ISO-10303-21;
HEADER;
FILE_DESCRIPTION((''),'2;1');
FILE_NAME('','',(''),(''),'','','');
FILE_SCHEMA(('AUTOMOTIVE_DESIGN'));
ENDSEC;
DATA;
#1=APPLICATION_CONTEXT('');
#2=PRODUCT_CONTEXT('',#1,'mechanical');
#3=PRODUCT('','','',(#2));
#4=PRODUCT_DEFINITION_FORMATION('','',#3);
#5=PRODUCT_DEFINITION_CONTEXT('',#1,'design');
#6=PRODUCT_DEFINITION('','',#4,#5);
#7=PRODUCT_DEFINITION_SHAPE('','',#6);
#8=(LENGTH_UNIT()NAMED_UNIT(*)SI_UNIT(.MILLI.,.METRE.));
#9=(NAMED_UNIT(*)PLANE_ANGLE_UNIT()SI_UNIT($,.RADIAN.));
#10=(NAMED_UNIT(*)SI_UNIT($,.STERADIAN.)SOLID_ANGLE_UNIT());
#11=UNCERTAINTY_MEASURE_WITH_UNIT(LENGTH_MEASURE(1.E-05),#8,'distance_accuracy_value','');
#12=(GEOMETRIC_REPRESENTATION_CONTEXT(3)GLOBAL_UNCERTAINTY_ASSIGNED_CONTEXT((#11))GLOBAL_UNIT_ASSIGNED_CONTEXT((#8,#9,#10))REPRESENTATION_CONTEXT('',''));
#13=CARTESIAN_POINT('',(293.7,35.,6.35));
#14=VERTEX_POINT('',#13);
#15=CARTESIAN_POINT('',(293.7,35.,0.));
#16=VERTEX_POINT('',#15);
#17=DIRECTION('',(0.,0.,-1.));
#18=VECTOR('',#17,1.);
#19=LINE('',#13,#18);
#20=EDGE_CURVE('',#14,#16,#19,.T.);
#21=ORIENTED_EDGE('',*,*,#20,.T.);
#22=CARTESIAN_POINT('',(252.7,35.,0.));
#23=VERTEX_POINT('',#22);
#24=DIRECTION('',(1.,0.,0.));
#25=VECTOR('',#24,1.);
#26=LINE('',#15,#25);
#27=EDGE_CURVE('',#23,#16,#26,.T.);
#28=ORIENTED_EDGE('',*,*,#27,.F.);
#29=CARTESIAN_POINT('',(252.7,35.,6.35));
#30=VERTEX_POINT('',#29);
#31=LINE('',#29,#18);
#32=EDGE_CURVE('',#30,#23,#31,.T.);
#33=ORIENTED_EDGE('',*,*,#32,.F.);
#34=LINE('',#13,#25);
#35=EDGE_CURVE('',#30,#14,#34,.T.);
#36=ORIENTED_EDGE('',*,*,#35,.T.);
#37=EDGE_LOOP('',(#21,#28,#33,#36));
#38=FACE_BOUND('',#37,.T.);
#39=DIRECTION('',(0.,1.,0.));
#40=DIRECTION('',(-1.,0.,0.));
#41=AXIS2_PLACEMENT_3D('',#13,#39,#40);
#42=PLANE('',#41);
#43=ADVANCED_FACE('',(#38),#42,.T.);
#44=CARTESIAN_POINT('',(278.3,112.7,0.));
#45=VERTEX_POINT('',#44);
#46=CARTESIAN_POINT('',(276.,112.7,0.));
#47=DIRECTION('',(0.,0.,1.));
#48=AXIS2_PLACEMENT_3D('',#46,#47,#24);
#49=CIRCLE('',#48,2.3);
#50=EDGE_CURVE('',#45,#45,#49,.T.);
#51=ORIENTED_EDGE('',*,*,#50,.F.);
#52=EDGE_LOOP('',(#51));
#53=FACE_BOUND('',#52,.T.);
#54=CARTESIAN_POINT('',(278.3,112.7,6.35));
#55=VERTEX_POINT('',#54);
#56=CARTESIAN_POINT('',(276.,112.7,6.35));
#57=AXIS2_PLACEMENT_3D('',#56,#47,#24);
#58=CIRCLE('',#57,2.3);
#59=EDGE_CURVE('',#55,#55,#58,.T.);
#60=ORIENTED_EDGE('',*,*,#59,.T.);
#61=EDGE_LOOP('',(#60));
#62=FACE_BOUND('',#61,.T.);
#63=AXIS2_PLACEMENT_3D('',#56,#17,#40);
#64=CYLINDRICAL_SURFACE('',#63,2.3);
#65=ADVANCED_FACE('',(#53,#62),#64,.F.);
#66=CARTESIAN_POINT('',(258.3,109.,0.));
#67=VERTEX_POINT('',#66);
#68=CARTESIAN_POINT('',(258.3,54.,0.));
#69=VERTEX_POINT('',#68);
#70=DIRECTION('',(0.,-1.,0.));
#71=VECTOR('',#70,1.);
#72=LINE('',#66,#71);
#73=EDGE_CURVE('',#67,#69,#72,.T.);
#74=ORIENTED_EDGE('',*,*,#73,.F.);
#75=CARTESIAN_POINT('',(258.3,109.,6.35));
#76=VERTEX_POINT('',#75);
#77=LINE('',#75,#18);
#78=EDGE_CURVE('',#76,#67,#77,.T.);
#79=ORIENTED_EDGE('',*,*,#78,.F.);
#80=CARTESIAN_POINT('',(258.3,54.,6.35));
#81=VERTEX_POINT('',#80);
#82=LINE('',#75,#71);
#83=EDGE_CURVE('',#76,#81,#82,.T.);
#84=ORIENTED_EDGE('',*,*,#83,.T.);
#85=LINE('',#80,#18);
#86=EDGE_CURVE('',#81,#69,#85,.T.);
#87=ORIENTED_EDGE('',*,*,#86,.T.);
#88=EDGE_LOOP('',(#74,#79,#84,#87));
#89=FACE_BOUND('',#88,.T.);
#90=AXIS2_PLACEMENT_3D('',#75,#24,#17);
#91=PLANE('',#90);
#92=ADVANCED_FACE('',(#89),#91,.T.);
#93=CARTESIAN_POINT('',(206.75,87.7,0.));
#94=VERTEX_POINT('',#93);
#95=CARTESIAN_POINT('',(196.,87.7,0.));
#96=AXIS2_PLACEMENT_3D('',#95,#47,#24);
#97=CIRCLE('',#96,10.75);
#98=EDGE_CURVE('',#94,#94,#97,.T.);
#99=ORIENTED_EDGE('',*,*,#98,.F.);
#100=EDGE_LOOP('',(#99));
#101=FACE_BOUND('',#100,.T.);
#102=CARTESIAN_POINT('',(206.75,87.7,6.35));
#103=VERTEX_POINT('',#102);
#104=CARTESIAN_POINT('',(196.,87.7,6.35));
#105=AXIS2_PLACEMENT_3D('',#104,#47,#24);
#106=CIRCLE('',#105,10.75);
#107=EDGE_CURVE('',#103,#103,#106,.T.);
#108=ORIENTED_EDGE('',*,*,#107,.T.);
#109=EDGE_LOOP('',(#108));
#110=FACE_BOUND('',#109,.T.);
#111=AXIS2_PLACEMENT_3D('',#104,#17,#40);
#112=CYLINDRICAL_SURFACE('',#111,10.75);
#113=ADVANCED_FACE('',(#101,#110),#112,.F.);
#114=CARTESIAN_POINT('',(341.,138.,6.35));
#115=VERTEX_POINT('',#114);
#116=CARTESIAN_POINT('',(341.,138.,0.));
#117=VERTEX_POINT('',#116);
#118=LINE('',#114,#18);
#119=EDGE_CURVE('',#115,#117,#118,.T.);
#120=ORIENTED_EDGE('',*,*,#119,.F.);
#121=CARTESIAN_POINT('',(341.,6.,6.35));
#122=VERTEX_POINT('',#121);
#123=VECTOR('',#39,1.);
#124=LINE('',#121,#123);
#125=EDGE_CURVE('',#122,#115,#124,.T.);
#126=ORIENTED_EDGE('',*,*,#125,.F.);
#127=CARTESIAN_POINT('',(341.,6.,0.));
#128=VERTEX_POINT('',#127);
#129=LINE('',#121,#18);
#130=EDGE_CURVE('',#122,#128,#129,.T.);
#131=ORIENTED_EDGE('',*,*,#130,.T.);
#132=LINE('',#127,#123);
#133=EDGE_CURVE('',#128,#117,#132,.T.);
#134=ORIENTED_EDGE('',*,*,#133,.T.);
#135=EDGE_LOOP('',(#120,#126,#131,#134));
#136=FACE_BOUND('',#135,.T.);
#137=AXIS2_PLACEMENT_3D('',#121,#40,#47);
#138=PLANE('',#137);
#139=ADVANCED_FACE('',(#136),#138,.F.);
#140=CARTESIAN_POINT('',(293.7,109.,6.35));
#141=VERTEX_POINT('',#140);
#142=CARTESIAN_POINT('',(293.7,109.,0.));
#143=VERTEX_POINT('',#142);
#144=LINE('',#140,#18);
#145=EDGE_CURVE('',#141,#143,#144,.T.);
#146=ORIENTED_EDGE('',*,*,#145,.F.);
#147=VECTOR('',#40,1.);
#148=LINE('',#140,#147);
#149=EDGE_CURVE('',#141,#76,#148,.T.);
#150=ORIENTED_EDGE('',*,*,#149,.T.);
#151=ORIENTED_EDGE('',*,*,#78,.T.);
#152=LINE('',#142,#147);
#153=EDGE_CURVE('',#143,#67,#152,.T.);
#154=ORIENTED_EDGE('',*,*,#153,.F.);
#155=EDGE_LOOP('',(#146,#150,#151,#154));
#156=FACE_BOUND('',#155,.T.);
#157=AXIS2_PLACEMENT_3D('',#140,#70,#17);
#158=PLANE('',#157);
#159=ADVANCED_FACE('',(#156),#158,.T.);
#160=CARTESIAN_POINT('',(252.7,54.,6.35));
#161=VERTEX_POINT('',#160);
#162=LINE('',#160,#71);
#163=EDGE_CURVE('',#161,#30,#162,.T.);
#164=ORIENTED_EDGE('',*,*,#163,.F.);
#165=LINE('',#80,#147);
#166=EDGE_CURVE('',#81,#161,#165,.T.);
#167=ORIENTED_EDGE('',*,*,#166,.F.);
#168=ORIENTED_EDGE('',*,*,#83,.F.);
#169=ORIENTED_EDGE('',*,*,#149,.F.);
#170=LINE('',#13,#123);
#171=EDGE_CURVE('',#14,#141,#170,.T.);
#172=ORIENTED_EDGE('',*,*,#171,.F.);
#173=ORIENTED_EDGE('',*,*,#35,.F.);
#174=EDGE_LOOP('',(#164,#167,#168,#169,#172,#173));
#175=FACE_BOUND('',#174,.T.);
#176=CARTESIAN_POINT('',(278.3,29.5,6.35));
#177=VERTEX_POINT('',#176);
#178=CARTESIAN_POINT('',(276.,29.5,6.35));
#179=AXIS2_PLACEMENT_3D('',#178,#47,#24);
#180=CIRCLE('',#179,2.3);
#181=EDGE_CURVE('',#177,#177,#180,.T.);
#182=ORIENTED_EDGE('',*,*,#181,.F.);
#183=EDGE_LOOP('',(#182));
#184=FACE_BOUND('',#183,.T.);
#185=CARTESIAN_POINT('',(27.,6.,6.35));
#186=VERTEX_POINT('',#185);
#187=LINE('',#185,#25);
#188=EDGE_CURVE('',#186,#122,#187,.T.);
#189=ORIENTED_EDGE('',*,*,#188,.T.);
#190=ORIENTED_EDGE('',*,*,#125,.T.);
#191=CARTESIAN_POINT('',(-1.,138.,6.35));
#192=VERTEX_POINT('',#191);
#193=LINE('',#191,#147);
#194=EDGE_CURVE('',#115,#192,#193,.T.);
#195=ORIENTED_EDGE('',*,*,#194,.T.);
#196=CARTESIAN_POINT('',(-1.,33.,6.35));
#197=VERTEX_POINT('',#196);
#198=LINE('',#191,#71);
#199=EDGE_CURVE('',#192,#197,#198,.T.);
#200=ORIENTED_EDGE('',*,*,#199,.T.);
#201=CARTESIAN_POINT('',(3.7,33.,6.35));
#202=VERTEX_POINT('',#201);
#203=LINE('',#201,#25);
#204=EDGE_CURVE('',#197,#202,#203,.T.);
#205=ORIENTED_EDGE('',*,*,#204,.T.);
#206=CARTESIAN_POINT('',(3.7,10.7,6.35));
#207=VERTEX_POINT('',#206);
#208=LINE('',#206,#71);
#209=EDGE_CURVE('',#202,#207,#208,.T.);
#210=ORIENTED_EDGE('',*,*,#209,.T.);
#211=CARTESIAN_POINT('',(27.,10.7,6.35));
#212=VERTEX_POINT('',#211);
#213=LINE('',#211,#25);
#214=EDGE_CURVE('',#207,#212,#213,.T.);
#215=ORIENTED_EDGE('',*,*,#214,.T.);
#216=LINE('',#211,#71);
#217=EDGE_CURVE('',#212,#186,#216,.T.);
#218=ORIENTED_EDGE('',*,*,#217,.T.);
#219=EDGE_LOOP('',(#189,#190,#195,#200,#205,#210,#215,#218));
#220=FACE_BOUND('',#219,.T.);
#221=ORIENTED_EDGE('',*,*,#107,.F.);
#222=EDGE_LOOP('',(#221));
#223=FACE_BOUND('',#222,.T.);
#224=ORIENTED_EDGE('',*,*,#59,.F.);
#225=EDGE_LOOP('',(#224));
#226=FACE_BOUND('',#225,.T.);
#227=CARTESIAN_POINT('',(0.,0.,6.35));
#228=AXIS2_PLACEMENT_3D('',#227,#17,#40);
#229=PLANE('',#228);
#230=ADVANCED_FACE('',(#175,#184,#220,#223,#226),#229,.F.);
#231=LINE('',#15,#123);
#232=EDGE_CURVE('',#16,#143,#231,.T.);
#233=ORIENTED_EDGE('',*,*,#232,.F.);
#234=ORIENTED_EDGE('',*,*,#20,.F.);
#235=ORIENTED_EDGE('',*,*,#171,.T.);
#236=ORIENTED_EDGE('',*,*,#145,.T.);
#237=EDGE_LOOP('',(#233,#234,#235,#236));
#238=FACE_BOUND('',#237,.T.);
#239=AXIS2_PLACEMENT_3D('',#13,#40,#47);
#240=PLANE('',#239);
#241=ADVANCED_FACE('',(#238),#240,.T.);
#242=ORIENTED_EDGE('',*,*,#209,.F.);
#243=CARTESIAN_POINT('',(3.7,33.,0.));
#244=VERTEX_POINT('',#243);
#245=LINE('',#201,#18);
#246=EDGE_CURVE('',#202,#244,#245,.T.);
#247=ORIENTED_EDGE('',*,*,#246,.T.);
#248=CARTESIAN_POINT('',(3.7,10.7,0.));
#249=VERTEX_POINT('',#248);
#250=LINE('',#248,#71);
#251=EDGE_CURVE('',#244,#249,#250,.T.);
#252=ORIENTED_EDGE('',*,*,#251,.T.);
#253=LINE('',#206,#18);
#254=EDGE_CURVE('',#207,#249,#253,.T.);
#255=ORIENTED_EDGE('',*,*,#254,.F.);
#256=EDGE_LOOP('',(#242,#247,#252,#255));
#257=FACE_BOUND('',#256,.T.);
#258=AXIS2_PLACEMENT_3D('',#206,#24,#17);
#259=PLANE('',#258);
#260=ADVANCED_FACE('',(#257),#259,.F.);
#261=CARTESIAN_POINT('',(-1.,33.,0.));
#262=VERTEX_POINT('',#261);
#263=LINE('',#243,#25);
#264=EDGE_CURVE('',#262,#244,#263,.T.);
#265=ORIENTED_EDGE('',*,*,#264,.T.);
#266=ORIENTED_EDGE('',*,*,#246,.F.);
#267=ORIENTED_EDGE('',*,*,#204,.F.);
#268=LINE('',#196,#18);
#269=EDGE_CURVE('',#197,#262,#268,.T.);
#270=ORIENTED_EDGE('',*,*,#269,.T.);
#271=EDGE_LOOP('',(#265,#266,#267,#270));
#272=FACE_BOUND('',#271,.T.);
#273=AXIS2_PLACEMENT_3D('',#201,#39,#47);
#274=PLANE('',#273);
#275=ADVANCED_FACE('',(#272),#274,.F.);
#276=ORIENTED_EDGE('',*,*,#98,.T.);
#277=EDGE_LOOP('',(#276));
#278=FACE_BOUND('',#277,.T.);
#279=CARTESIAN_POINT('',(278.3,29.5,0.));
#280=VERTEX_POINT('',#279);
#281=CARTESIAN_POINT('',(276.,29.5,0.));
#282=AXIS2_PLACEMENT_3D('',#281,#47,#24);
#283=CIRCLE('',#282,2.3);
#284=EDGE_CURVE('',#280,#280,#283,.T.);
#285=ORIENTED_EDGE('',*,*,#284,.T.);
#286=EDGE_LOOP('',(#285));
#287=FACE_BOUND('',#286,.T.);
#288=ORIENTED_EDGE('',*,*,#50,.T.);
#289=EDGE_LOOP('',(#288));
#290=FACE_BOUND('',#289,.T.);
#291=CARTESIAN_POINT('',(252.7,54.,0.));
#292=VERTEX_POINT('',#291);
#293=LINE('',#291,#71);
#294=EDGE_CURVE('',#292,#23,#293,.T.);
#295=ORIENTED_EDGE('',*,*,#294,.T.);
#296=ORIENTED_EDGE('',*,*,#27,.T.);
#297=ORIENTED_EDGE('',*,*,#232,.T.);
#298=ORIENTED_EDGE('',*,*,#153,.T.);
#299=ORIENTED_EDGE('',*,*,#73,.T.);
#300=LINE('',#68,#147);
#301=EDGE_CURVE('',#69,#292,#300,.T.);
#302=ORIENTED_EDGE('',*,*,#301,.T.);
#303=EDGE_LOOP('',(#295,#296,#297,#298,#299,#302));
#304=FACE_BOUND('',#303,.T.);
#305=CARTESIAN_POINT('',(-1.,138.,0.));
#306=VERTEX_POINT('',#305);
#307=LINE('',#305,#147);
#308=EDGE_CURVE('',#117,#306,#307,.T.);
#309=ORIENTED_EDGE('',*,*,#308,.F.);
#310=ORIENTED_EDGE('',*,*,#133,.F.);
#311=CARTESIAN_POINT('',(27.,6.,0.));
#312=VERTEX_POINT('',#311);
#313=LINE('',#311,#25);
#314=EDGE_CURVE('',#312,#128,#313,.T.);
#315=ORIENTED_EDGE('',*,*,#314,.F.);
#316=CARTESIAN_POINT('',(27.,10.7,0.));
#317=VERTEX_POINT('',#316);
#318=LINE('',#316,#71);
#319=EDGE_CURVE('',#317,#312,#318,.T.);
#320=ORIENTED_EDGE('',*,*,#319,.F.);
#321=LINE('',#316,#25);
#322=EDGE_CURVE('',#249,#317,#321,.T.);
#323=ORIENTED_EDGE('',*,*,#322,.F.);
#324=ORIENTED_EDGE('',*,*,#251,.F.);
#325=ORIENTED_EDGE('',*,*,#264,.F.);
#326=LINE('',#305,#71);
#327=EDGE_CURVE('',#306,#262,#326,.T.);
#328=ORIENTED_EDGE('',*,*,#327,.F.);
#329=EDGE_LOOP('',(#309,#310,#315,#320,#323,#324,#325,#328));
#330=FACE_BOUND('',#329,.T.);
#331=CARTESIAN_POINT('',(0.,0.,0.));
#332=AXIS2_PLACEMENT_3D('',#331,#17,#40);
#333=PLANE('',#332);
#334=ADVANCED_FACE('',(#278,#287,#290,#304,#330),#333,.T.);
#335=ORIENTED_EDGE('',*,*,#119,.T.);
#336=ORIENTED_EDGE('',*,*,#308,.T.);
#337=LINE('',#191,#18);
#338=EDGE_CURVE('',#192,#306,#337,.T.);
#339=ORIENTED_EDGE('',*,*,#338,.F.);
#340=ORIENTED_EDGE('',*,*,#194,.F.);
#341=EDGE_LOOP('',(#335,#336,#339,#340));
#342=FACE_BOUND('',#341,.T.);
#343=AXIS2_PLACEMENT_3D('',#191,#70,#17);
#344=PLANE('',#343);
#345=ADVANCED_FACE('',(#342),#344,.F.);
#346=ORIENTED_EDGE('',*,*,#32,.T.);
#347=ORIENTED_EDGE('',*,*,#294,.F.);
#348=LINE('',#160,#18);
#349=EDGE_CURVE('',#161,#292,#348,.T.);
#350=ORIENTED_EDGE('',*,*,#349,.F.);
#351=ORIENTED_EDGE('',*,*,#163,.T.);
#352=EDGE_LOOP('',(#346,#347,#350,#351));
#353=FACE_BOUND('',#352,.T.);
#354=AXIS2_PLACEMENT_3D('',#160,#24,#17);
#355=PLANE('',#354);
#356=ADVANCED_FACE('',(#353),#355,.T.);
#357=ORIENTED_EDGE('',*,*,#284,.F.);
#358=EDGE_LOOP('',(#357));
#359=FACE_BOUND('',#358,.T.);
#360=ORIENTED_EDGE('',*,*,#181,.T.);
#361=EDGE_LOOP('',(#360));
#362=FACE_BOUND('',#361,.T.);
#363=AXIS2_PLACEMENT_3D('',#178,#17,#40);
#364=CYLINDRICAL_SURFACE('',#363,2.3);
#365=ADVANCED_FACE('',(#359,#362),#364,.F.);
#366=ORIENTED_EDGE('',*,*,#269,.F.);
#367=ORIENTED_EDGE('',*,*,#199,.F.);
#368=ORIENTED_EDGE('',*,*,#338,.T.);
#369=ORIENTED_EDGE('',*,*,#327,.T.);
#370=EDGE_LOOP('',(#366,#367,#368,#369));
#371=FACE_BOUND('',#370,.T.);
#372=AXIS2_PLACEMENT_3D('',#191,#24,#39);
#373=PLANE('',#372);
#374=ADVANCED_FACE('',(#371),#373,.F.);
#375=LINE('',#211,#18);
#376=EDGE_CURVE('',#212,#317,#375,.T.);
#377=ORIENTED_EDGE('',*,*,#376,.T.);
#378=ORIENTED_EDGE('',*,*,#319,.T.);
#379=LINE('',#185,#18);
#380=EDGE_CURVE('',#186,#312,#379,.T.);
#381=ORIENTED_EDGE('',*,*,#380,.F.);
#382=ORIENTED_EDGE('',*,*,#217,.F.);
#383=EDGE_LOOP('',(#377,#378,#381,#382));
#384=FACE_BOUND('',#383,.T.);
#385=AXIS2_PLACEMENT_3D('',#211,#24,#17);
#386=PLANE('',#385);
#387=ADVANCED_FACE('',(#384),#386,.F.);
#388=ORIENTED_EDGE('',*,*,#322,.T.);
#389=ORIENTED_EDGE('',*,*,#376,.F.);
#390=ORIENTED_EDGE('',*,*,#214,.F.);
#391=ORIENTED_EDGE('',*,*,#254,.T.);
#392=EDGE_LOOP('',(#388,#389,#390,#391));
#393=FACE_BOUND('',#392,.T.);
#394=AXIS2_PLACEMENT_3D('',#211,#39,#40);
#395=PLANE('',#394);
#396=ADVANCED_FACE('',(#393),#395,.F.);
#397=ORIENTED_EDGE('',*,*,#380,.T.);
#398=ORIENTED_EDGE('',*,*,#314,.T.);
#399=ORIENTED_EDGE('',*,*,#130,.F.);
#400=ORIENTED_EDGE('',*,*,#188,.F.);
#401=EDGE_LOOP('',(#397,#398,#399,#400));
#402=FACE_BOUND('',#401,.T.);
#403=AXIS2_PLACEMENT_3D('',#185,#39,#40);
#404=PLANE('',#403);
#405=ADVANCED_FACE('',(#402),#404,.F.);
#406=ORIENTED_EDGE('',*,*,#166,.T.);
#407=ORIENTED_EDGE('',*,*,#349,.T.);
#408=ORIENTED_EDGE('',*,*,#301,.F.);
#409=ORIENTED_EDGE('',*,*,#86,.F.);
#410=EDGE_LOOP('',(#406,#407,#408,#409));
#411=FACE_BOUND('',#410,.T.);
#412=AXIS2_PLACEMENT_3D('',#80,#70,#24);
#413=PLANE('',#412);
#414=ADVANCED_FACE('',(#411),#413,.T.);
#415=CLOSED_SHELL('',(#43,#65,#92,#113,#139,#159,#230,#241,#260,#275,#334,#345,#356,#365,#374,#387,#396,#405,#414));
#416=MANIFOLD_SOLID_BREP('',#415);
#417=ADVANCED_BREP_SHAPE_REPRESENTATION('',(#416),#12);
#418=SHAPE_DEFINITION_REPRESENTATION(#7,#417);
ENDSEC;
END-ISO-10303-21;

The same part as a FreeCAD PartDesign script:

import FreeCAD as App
import Part
import Sketcher
from FreeCAD import Vector

doc = App.newDocument("Part")
body = doc.addObject("PartDesign::Body", "Body")

sketch1 = body.newObject("Sketcher::SketchObject", "Sketch")
sketch1.AttachmentSupport = (doc.getObject("XY_Plane"), [""])
sketch1.MapMode = "FlatFace"
sketch1.addGeometry([
    Part.LineSegment(Vector(341, 138, 0), Vector(-1, 138, 0)),
    Part.LineSegment(Vector(-1, 138, 0), Vector(-1, 33, 0)),
    Part.LineSegment(Vector(-1, 33, 0), Vector(3.7, 33, 0)),
    Part.LineSegment(Vector(3.7, 33, 0), Vector(3.7, 10.7, 0)),
    Part.LineSegment(Vector(3.7, 10.7, 0), Vector(27, 10.7, 0)),
    Part.LineSegment(Vector(27, 10.7, 0), Vector(27, 6, 0)),
    Part.LineSegment(Vector(27, 6, 0), Vector(341, 6, 0)),
    Part.LineSegment(Vector(341, 6, 0), Vector(341, 138, 0)),
    Part.Circle(Vector(276, 29.5, 0), Vector(0, 0, 1), 2.3),
    Part.LineSegment(Vector(293.7, 35, 0), Vector(252.7, 35, 0)),
    Part.LineSegment(Vector(252.7, 35, 0), Vector(252.7, 54, 0)),
    Part.LineSegment(Vector(252.7, 54, 0), Vector(258.3, 54, 0)),
    Part.LineSegment(Vector(258.3, 54, 0), Vector(258.3, 109, 0)),
    Part.LineSegment(Vector(258.3, 109, 0), Vector(293.7, 109, 0)),
    Part.LineSegment(Vector(293.7, 109, 0), Vector(293.7, 35, 0)),
    Part.Circle(Vector(276, 112.7, 0), Vector(0, 0, 1), 2.3),
    Part.Circle(Vector(196, 87.7, 0), Vector(0, 0, 1), 10.8),
], False)
sketch1.addConstraint([
    Sketcher.Constraint("Coincident", 0, 2, 1, 1),
    Sketcher.Constraint("Coincident", 1, 2, 2, 1),
    Sketcher.Constraint("Coincident", 2, 2, 3, 1),
    Sketcher.Constraint("Coincident", 3, 2, 4, 1),
    Sketcher.Constraint("Coincident", 4, 2, 5, 1),
    Sketcher.Constraint("Coincident", 5, 2, 6, 1),
    Sketcher.Constraint("Coincident", 6, 2, 7, 1),
    Sketcher.Constraint("Coincident", 7, 2, 0, 1),
    Sketcher.Constraint("Coincident", 9, 2, 10, 1),
    Sketcher.Constraint("Coincident", 10, 2, 11, 1),
    Sketcher.Constraint("Coincident", 11, 2, 12, 1),
    Sketcher.Constraint("Coincident", 12, 2, 13, 1),
    Sketcher.Constraint("Coincident", 13, 2, 14, 1),
    Sketcher.Constraint("Coincident", 14, 2, 9, 1),
    Sketcher.Constraint("Horizontal", 0),
    Sketcher.Constraint("Vertical", 1),
    Sketcher.Constraint("Horizontal", 2),
    Sketcher.Constraint("Vertical", 3),
    Sketcher.Constraint("Horizontal", 4),
    Sketcher.Constraint("Vertical", 5),
    Sketcher.Constraint("Horizontal", 6),
    Sketcher.Constraint("Vertical", 7),
    Sketcher.Constraint("Horizontal", 9),
    Sketcher.Constraint("Vertical", 10),
    Sketcher.Constraint("Horizontal", 11),
    Sketcher.Constraint("Vertical", 12),
    Sketcher.Constraint("Horizontal", 13),
    Sketcher.Constraint("Vertical", 14),
    Sketcher.Constraint("Equal", 8, 15),
    Sketcher.Constraint("Vertical", 8, 3, 15, 3),
    Sketcher.Constraint("Equal", 2, 5),
    Sketcher.Constraint("Diameter", 8, 4.6),
    Sketcher.Constraint("Diameter", 16, 21.5),
    Sketcher.Constraint("DistanceX", 0, 2, 0, 1, 342.0),
    Sketcher.Constraint("DistanceX", 6, 1, 6, 2, 314.0),
    Sketcher.Constraint("DistanceX", 9, 2, 9, 1, 41.0),
    Sketcher.Constraint("DistanceY", 1, 2, 1, 1, 105.0),
    Sketcher.Constraint("DistanceY", 7, 1, 7, 2, 132.0),
    Sketcher.Constraint("DistanceY", 10, 1, 10, 2, 19.0),
    Sketcher.Constraint("DistanceY", 12, 1, 12, 2, 55.0),
    Sketcher.Constraint("DistanceX", 2, 1, 2, 2, 4.7),
    Sketcher.Constraint("DistanceX", 11, 1, 11, 2, 5.6),
    Sketcher.Constraint("DistanceX", -1, 1, 8, 3, 276.0),
    Sketcher.Constraint("DistanceX", -1, 1, 16, 3, 196.0),
    Sketcher.Constraint("DistanceX", 0, 2, -1, 1, 1.0),
    Sketcher.Constraint("DistanceY", -1, 1, 0, 2, 138.0),
    Sketcher.Constraint("DistanceY", -1, 1, 9, 2, 35.0),
    Sketcher.Constraint("DistanceY", 16, 3, 15, 3, 25.0),
    Sketcher.Constraint("DistanceY", 3, 2, 16, 3, 77.0),
    Sketcher.Constraint("DistanceY", -1, 1, 8, 3, 29.5),
    Sketcher.Constraint("DistanceX", -1, 1, 9, 2, 252.7),
])
pad1 = body.newObject("PartDesign::Pad", "Pad")
pad1.Profile = sketch1
pad1.Length = 6.35

doc.recompute()
